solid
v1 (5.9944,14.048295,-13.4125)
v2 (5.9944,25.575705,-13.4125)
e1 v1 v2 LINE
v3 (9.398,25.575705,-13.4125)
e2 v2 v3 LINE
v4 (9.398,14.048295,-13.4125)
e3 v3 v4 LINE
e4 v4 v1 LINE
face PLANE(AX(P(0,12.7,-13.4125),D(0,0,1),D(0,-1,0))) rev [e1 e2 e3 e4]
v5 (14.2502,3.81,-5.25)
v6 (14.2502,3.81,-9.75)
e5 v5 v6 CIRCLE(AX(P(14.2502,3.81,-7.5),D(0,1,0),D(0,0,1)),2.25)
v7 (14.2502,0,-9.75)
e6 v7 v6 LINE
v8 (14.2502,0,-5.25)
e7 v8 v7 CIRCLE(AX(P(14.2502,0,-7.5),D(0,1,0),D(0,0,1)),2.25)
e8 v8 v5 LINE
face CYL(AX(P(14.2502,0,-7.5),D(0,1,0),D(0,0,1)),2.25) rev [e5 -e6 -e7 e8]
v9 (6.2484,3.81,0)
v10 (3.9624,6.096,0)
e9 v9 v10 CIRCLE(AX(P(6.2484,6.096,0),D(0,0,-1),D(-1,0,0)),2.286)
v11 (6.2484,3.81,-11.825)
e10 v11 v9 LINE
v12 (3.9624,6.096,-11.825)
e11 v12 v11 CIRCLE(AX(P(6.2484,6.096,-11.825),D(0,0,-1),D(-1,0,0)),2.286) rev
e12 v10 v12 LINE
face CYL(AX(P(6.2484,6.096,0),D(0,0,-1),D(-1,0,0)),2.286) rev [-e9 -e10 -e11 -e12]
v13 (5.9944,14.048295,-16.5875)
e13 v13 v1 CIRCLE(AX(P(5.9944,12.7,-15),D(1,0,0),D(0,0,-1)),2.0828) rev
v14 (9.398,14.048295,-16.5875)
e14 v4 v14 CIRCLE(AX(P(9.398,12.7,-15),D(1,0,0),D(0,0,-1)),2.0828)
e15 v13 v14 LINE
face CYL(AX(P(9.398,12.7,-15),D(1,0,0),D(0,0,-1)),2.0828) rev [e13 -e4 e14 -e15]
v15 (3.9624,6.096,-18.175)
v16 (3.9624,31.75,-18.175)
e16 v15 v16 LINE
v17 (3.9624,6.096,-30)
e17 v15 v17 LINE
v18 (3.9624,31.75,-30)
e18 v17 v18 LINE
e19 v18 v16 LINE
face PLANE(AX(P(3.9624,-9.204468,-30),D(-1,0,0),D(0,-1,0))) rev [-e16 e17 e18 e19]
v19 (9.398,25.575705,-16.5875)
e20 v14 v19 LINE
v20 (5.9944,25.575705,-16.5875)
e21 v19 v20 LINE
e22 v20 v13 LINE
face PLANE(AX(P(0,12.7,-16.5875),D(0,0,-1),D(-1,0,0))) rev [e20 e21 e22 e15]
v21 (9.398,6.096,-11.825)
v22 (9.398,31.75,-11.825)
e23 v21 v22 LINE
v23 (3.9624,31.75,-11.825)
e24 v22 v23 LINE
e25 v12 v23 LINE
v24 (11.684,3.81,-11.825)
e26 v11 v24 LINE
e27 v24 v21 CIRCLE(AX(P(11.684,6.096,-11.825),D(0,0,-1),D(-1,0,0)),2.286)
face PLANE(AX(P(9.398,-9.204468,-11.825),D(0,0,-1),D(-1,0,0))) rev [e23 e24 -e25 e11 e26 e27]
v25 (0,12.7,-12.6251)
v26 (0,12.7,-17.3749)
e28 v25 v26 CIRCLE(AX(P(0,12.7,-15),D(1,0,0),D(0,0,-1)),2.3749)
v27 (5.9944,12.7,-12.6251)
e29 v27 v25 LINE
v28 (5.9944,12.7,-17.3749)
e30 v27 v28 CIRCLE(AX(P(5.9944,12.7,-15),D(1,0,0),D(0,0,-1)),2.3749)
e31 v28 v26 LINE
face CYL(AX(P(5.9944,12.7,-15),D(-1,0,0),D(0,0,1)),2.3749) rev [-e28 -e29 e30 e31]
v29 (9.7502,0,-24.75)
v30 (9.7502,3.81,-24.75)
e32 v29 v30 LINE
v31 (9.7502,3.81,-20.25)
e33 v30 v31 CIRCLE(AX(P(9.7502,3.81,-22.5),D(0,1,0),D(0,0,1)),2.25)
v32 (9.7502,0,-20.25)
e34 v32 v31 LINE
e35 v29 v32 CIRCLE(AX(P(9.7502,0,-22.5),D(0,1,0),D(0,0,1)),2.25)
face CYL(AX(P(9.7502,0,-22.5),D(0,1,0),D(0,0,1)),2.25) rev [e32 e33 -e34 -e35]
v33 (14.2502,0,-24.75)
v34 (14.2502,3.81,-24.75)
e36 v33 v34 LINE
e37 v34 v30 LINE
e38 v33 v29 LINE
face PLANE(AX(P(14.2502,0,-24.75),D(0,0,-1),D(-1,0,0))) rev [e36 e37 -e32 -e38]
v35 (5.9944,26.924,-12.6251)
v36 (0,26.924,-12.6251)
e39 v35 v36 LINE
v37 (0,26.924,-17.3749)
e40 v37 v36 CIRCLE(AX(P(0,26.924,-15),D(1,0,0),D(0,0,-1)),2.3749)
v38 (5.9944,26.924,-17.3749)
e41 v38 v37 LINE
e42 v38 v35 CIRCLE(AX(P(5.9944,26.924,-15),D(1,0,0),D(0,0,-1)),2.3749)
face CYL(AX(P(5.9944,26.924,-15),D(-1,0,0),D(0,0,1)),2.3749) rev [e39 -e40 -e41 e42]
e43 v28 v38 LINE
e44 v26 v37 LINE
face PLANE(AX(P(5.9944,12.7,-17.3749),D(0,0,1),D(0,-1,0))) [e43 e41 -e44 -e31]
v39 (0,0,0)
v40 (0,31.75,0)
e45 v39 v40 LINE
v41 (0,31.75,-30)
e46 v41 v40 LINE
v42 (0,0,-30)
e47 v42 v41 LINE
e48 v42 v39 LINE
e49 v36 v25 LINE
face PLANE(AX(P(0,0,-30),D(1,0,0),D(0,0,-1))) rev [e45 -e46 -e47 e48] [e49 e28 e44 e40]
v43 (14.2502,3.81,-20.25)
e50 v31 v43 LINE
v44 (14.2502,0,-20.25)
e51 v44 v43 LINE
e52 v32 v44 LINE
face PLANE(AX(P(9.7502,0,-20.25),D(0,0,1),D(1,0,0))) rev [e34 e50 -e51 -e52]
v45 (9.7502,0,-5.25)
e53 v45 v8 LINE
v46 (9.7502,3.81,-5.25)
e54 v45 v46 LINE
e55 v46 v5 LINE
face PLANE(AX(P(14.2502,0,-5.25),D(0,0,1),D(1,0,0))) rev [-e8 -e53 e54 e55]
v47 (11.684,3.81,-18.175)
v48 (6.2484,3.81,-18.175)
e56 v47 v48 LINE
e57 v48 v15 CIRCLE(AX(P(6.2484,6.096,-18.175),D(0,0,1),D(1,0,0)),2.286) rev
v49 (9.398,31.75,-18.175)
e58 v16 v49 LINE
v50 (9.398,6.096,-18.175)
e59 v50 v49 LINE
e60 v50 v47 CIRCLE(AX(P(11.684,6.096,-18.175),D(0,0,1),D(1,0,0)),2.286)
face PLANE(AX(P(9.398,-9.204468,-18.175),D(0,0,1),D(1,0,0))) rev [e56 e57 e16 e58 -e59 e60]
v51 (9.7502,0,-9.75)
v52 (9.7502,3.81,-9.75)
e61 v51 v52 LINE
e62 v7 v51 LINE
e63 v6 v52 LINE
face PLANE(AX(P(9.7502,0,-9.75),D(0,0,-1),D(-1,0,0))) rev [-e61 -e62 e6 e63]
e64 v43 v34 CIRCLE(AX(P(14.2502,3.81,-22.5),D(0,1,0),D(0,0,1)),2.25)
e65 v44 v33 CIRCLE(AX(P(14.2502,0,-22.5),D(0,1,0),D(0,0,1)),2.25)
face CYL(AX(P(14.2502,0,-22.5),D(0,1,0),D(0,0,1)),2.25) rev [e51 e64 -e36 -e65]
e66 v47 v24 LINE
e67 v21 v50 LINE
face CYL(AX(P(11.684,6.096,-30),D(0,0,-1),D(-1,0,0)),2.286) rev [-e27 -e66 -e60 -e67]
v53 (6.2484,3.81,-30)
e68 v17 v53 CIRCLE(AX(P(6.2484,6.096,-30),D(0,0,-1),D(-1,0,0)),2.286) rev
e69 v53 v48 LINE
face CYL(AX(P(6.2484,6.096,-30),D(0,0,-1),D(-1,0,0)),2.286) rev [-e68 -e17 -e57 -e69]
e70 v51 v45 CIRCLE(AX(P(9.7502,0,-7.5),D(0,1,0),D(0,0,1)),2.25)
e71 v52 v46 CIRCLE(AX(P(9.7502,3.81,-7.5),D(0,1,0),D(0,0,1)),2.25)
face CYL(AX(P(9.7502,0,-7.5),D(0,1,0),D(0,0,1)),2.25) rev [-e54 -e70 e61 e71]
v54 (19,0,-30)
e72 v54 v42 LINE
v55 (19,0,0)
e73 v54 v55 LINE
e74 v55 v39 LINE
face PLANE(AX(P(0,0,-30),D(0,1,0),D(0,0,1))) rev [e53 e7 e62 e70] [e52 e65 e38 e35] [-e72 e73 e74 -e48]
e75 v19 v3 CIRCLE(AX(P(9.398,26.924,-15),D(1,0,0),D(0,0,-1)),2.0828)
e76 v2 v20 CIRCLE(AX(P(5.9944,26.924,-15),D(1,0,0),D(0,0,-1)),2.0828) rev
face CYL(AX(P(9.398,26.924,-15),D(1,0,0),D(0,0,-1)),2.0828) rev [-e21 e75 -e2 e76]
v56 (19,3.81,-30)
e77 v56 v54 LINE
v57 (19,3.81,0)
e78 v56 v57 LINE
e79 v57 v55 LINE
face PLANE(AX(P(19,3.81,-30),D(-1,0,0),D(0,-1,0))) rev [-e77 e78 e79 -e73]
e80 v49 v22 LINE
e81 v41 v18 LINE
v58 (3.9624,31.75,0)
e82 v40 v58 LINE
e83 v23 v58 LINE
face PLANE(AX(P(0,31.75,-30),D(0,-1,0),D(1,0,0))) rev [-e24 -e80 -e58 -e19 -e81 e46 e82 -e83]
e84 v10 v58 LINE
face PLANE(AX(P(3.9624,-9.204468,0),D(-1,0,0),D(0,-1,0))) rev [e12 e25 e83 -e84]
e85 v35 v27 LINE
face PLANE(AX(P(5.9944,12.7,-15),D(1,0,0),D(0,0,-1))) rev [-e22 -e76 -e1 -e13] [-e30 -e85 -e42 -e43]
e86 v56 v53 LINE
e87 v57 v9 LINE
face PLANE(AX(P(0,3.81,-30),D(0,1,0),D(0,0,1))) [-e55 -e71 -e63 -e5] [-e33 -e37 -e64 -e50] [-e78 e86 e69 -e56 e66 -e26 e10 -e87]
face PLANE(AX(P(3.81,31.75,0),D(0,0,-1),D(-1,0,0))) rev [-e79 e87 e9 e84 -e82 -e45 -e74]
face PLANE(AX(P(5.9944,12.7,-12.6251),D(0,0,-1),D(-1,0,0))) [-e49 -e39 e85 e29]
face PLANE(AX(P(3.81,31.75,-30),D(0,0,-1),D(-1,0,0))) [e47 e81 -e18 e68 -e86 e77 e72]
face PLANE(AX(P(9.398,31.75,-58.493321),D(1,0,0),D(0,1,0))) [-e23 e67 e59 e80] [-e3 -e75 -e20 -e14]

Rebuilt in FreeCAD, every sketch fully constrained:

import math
import FreeCAD as App
import Part
import Sketcher
Q = App.Units.Quantity


def edges_at(feature, points):
    """Names of the edges that pass closest to the given points."""
    edges = feature.Shape.Edges
    near = lambda p: min(range(len(edges)), key=lambda i: edges[i].distToShape(Part.Vertex(*p))[0])
    return sorted({f"Edge{near(p) + 1}" for p in points})

doc = App.newDocument("Part")
body = doc.addObject("PartDesign::Body", "Body")

sketch1 = body.newObject("Sketcher::SketchObject", "Sketch")
sketch1.AttachmentSupport = (doc.getObject("XY_Plane"), [""])
sketch1.MapMode = "FlatFace"
sketch1.addGeometry([
    Part.LineSegment(App.Vector(0, 31.8, 0), App.Vector(0, 0, 0)),
    Part.LineSegment(App.Vector(0, 0, 0), App.Vector(19, 0, 0)),
    Part.LineSegment(App.Vector(19, 0, 0), App.Vector(19, 3.8, 0)),
    Part.LineSegment(App.Vector(19, 3.8, 0), App.Vector(3.8, 3.8, 0)),
    Part.LineSegment(App.Vector(3.8, 3.8, 0), App.Vector(3.8, 31.8, 0)),
    Part.LineSegment(App.Vector(3.8, 31.8, 0), App.Vector(0, 31.8, 0)),
], False)
sketch1.addConstraint([
    Sketcher.Constraint("Coincident", 0, 2, 1, 1),
    Sketcher.Constraint("Coincident", 1, 2, 2, 1),
    Sketcher.Constraint("Coincident", 2, 2, 3, 1),
    Sketcher.Constraint("Coincident", 3, 2, 4, 1),
    Sketcher.Constraint("Coincident", 4, 2, 5, 1),
    Sketcher.Constraint("Coincident", 5, 2, 0, 1),
    Sketcher.Constraint("Vertical", 0),
    Sketcher.Constraint("Horizontal", 1),
    Sketcher.Constraint("Vertical", 2),
    Sketcher.Constraint("Horizontal", 3),
    Sketcher.Constraint("Vertical", 4),
    Sketcher.Constraint("Horizontal", 5),
    Sketcher.Constraint("Coincident", 0, 2, -1, 1),
    Sketcher.Constraint("Equal", 5, 2),
    Sketcher.Constraint("DistanceY", 4, 1, 4, 2, Q("1.1 in")),
    Sketcher.Constraint("DistanceX", 5, 2, 5, 1, Q("0.15 in")),
    Sketcher.Constraint("DistanceX", 1, 1, 1, 2, Q("19 mm")),
])
pad1 = body.newObject("PartDesign::Pad", "Pad")
pad1.Profile = sketch1
pad1.Length = 30
pad1.Reversed = True

sketch2 = body.newObject("Sketcher::SketchObject", "Sketch001")
sketch2.AttachmentSupport = (doc.getObject("XZ_Plane"), [""])
sketch2.MapMode = "FlatFace"
sketch2.AttachmentOffset = App.Placement(App.Vector(0, 0, -0.15 * 25.4), App.Rotation())
sketch2.addGeometry([
    Part.LineSegment(App.Vector(14.3, -24.8, 0), App.Vector(9.8, -24.8, 0)),
    Part.ArcOfCircle(Part.Circle(App.Vector(9.8, -22.5, 0), App.Vector(0, 0, 1), 2.2), math.radians(90), math.radians(270)),
    Part.LineSegment(App.Vector(9.8, -20.2, 0), App.Vector(14.3, -20.2, 0)),
    Part.ArcOfCircle(Part.Circle(App.Vector(14.3, -22.5, 0), App.Vector(0, 0, 1), 2.2), math.radians(-90), math.radians(90)),
    Part.LineSegment(App.Vector(14.3, -9.8, 0), App.Vector(9.8, -9.8, 0)),
    Part.ArcOfCircle(Part.Circle(App.Vector(9.8, -7.5, 0), App.Vector(0, 0, 1), 2.2), math.radians(90), math.radians(270)),
    Part.LineSegment(App.Vector(9.8, -5.2, 0), App.Vector(14.3, -5.2, 0)),
    Part.ArcOfCircle(Part.Circle(App.Vector(14.3, -7.5, 0), App.Vector(0, 0, 1), 2.2), math.radians(-90), math.radians(90)),
], False)
sketch2.addConstraint([
    Sketcher.Constraint("Tangent", 0, 2, 1, 2),
    Sketcher.Constraint("Tangent", 1, 1, 2, 1),
    Sketcher.Constraint("Tangent", 2, 2, 3, 2),
    Sketcher.Constraint("Tangent", 3, 1, 0, 1),
    Sketcher.Constraint("Tangent", 4, 2, 5, 2),
    Sketcher.Constraint("Tangent", 5, 1, 6, 1),
    Sketcher.Constraint("Tangent", 6, 2, 7, 2),
    Sketcher.Constraint("Tangent", 7, 1, 4, 1),
    Sketcher.Constraint("Horizontal", 0),
    Sketcher.Constraint("Horizontal", 2),
    Sketcher.Constraint("Horizontal", 4),
    Sketcher.Constraint("Horizontal", 6),
    Sketcher.Constraint("Equal", 3, 5),
    Sketcher.Constraint("Vertical", 1, 3, 5, 3),
    Sketcher.Constraint("Vertical", 3, 3, 7, 3),
    Sketcher.Constraint("Radius", 1, Q("2.25 mm")),
    Sketcher.Constraint("DistanceX", 0, 2, 0, 1, Q("4.5 mm")),
    Sketcher.Constraint("DistanceX", -1, 1, 1, 3, Q("9.7502 mm")),
    Sketcher.Constraint("DistanceY", 1, 3, -1, 1, Q("22.5 mm")),
    Sketcher.Constraint("DistanceY", 5, 3, -1, 1, Q("7.5 mm")),
])
pocket1 = body.newObject("PartDesign::Pocket", "Pocket")
pocket1.Profile = sketch2
pocket1.Type = "ThroughAll"
pocket1.Reversed = True

sketch3 = body.newObject("Sketcher::SketchObject", "Sketch002")
sketch3.AttachmentSupport = (doc.getObject("XY_Plane"), [""])
sketch3.MapMode = "FlatFace"
sketch3.addGeometry([
    Part.LineSegment(App.Vector(4, 32, 0), App.Vector(4, 4, 0)),
    Part.LineSegment(App.Vector(4, 4, 0), App.Vector(9, 4, 0)),
    Part.LineSegment(App.Vector(9, 4, 0), App.Vector(9, 32, 0)),
    Part.LineSegment(App.Vector(9, 32, 0), App.Vector(4, 32, 0)),
], False)
sketch3.addConstraint([
    Sketcher.Constraint("Coincident", 0, 2, 1, 1),
    Sketcher.Constraint("Coincident", 1, 2, 2, 1),
    Sketcher.Constraint("Coincident", 2, 2, 3, 1),
    Sketcher.Constraint("Coincident", 3, 2, 0, 1),
    Sketcher.Constraint("Vertical", 0),
    Sketcher.Constraint("Horizontal", 1),
    Sketcher.Constraint("Vertical", 2),
    Sketcher.Constraint("Horizontal", 3),
    Sketcher.Constraint("DistanceY", 0, 2, 0, 1, Q("1.1 in")),
    Sketcher.Constraint("DistanceX", 1, 1, 1, 2, Q("0.22 in")),
    Sketcher.Constraint("DistanceX", -1, 1, 0, 2, Q("0.15 in")),
    Sketcher.Constraint("DistanceY", -1, 1, 0, 2, Q("0.15 in")),
])
pad2 = body.newObject("PartDesign::Pad", "Pad001")
pad2.Profile = sketch3
pad2.Length = 30
pad2.Reversed = True

sketch4 = body.newObject("Sketcher::SketchObject", "Sketch003")
sketch4.AttachmentSupport = (doc.getObject("YZ_Plane"), [""])
sketch4.MapMode = "FlatFace"
sketch4.AttachmentOffset = App.Placement(App.Vector(0, 0, 0.15 * 25.4), App.Rotation())
sketch4.addGeometry([
    Part.LineSegment(App.Vector(26.9, -13.4, 0), App.Vector(12.7, -13.4, 0)),
    Part.ArcOfCircle(Part.Circle(App.Vector(12.7, -15, 0), App.Vector(0, 0, 1), 1.6), math.radians(90), math.radians(270)),
    Part.LineSegment(App.Vector(12.7, -16.6, 0), App.Vector(26.9, -16.6, 0)),
    Part.ArcOfCircle(Part.Circle(App.Vector(26.9, -15, 0), App.Vector(0, 0, 1), 1.6), math.radians(-90), math.radians(90)),
], False)
sketch4.addConstraint([
    Sketcher.Constraint("Tangent", 0, 2, 1, 1),
    Sketcher.Constraint("Tangent", 1, 2, 2, 1),
    Sketcher.Constraint("Tangent", 2, 2, 3, 1),
    Sketcher.Constraint("Tangent", 3, 2, 0, 1),
    Sketcher.Constraint("Horizontal", 0),
    Sketcher.Constraint("Horizontal", 2),
    Sketcher.Constraint("Radius", 1, Q("0.0625 in")),
    Sketcher.Constraint("DistanceX", 0, 2, 0, 1, Q("0.56 in")),
    Sketcher.Constraint("DistanceX", -1, 1, 1, 3, Q("0.5 in")),
    Sketcher.Constraint("DistanceY", 1, 3, -1, 1, Q("15 mm")),
])
pocket2 = body.newObject("PartDesign::Pocket", "Pocket001")
pocket2.Profile = sketch4
pocket2.Type = "ThroughAll"
pocket2.Midplane = True

sketch5 = body.newObject("Sketcher::SketchObject", "Sketch004")
sketch5.AttachmentSupport = (doc.getObject("YZ_Plane"), [""])
sketch5.MapMode = "FlatFace"
sketch5.AttachmentOffset = App.Placement(App.Vector(0, 0, 0.37 * 25.4), App.Rotation())
sketch5.addGeometry([
    Part.Circle(App.Vector(12.7, -15, 0), App.Vector(0, 0, 1), 2.1),
    Part.Circle(App.Vector(26.9, -15, 0), App.Vector(0, 0, 1), 2.1),
], False)
sketch5.addConstraint([
    Sketcher.Constraint("Equal", 0, 1),
    Sketcher.Constraint("Horizontal", 0, 3, 1, 3),
    Sketcher.Constraint("Diameter", 0, Q("0.164 in")),
    Sketcher.Constraint("DistanceX", -1, 1, 0, 3, Q("0.5 in")),
    Sketcher.Constraint("DistanceX", -1, 1, 1, 3, Q("1.06 in")),
    Sketcher.Constraint("DistanceY", 0, 3, -1, 1, Q("15 mm")),
])
doc.recompute()
hole = body.newObject("PartDesign::Hole", "Hole")
hole.Profile = sketch5
hole.ThreadType = "None"
hole.Diameter = Q("0.164 in")
hole.DepthType = "ThroughAll"

sketch6 = body.newObject("Sketcher::SketchObject", "Sketch005")
sketch6.AttachmentSupport = (doc.getObject("XZ_Plane"), [""])
sketch6.MapMode = "FlatFace"
sketch6.AttachmentOffset = App.Placement(App.Vector(0, 0, -1.25 * 25.4), App.Rotation())
sketch6.addGeometry([
    Part.LineSegment(App.Vector(4, -30, 0), App.Vector(4, -18, 0)),
    Part.LineSegment(App.Vector(4, -18, 0), App.Vector(9, -18, 0)),
    Part.LineSegment(App.Vector(9, -18, 0), App.Vector(9, -30, 0)),
    Part.LineSegment(App.Vector(9, -30, 0), App.Vector(4, -30, 0)),
    Part.LineSegment(App.Vector(4, -12, 0), App.Vector(4, 0, 0)),
    Part.LineSegment(App.Vector(4, 0, 0), App.Vector(9, 0, 0)),
    Part.LineSegment(App.Vector(9, 0, 0), App.Vector(9, -12, 0)),
    Part.LineSegment(App.Vector(9, -12, 0), App.Vector(4, -12, 0)),
], False)
sketch6.addConstraint([
    Sketcher.Constraint("Coincident", 0, 2, 1, 1),
    Sketcher.Constraint("Coincident", 1, 2, 2, 1),
    Sketcher.Constraint("Coincident", 2, 2, 3, 1),
    Sketcher.Constraint("Coincident", 3, 2, 0, 1),
    Sketcher.Constraint("Coincident", 4, 2, 5, 1),
    Sketcher.Constraint("Coincident", 5, 2, 6, 1),
    Sketcher.Constraint("Coincident", 6, 2, 7, 1),
    Sketcher.Constraint("Coincident", 7, 2, 4, 1),
    Sketcher.Constraint("Vertical", 0),
    Sketcher.Constraint("Horizontal", 1),
    Sketcher.Constraint("Vertical", 2),
    Sketcher.Constraint("Horizontal", 3),
    Sketcher.Constraint("Vertical", 4),
    Sketcher.Constraint("Horizontal", 5),
    Sketcher.Constraint("Vertical", 6),
    Sketcher.Constraint("Horizontal", 7),
    Sketcher.Constraint("PointOnObject", 4, 2, -1),
    Sketcher.Constraint("Vertical", 3, 2, 4, 2),
    Sketcher.Constraint("Vertical", 2, 2, 5, 2),
    Sketcher.Constraint("Equal", 2, 4),
    Sketcher.Constraint("DistanceX", 1, 1, 1, 2, Q("0.214 in")),
    Sketcher.Constraint("DistanceX", -1, 1, 1, 2, Q("0.37 in")),
    Sketcher.Constraint("DistanceY", 1, 2, 6, 2, Q("0.25 in")),
    Sketcher.Constraint("DistanceY", 0, 1, 0, 2, Q("11.825 mm")),
])
pocket3 = body.newObject("PartDesign::Pocket", "Pocket002")
pocket3.Profile = sketch6
pocket3.Length = Q("1.1 in")
pocket3.Reversed = True
doc.recompute()

fillet = body.newObject("PartDesign::Fillet", "Fillet")
fillet.Base = (pocket3, edges_at(pocket3, [(9.398, 3.81, -15)]))
fillet.Radius = Q("0.09 in")
doc.recompute()

fillet2 = body.newObject("PartDesign::Fillet", "Fillet001")
fillet2.Base = (fillet, edges_at(fillet, [(3.962, 3.81, -24.087), (3.962, 3.81, -5.912)]))
fillet2.Radius = Q("0.09 in")

sketch7 = body.newObject("Sketcher::SketchObject", "Sketch006")
sketch7.AttachmentSupport = (doc.getObject("YZ_Plane"), [""])
sketch7.MapMode = "FlatFace"
sketch7.addGeometry([
    Part.LineSegment(App.Vector(26.9, -12.6, 0), App.Vector(12.7, -12.6, 0)),
    Part.ArcOfCircle(Part.Circle(App.Vector(12.7, -15, 0), App.Vector(0, 0, 1), 2.4), math.radians(90), math.radians(270)),
    Part.LineSegment(App.Vector(12.7, -17.4, 0), App.Vector(26.9, -17.4, 0)),
    Part.ArcOfCircle(Part.Circle(App.Vector(26.9, -15, 0), App.Vector(0, 0, 1), 2.4), math.radians(-90), math.radians(90)),
], False)
sketch7.addConstraint([
    Sketcher.Constraint("Tangent", 0, 2, 1, 1),
    Sketcher.Constraint("Tangent", 1, 2, 2, 1),
    Sketcher.Constraint("Tangent", 2, 2, 3, 1),
    Sketcher.Constraint("Tangent", 3, 2, 0, 1),
    Sketcher.Constraint("Horizontal", 0),
    Sketcher.Constraint("Horizontal", 2),
    Sketcher.Constraint("DistanceX", 0, 2, 0, 1, Q("0.56 in")),
    Sketcher.Constraint("DistanceX", -1, 1, 1, 3, Q("0.5 in")),
    Sketcher.Constraint("Radius", 1, Q("0.0935 in")),
    Sketcher.Constraint("DistanceY", 1, 3, -1, 1, Q("15 mm")),
])
pocket4 = body.newObject("PartDesign::Pocket", "Pocket003")
pocket4.Profile = sketch7
pocket4.Length = Q("0.236 in")
pocket4.Reversed = True

doc.recompute()
